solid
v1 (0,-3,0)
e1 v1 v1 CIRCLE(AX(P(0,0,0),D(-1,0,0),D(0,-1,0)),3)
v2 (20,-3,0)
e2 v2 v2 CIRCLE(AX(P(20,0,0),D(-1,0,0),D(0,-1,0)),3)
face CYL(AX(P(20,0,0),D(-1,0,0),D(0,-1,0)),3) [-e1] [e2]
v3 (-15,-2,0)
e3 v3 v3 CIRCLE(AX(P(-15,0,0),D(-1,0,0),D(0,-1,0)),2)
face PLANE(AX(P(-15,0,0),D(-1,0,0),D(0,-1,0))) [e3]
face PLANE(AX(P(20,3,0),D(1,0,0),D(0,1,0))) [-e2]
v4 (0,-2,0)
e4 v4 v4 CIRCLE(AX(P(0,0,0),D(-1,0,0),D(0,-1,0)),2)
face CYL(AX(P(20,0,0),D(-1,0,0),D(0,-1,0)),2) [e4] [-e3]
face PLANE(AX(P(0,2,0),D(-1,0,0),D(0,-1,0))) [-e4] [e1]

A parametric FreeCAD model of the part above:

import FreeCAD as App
import Part
import Sketcher


def add_polygon(sketch, points):
    """Adds a closed chain of lines whose ends are joined by coincident constraints."""
    first, n = sketch.GeometryCount, len(points)
    for a, b in zip(points, points[1:] + points[:1]):
        sketch.addGeometry(Part.LineSegment(App.Vector(*a, 0), App.Vector(*b, 0)), False)
    for i in range(n):
        sketch.addConstraint(Sketcher.Constraint("Coincident", first + i, 2, first + (i + 1) % n, 1))

doc = App.newDocument("Part")
body = doc.addObject("PartDesign::Body", "Body")

# Sketch on XY plane
sketch1 = body.newObject("Sketcher::SketchObject", "Sketch")
sketch1.AttachmentSupport = (doc.getObject("XY_Plane"), [""])
sketch1.MapMode = "FlatFace"
add_polygon(sketch1, [(20, 3), (20, 0), (-15, 0), (-15, 2), (0, 2), (0, 3)])  # lines 0-5
sketch1.addConstraint(Sketcher.Constraint("Vertical", 0))
sketch1.addConstraint(Sketcher.Constraint("Horizontal", 1))
sketch1.addConstraint(Sketcher.Constraint("Vertical", 2))
sketch1.addConstraint(Sketcher.Constraint("Horizontal", 3))
sketch1.addConstraint(Sketcher.Constraint("Vertical", 4))
sketch1.addConstraint(Sketcher.Constraint("Horizontal", 5))
sketch1.addConstraint(Sketcher.Constraint("PointOnObject", 0, 2, -1))
sketch1.addConstraint(Sketcher.Constraint("PointOnObject", 3, 2, -2))
sketch1.addConstraint(Sketcher.Constraint("DistanceX", 1, 2, 1, 1, 35.0))
sketch1.addConstraint(Sketcher.Constraint("DistanceX", 3, 1, 3, 2, 15.0))
sketch1.addConstraint(Sketcher.Constraint("DistanceY", 0, 2, 0, 1, 3.0))
sketch1.addConstraint(Sketcher.Constraint("DistanceY", 2, 1, 2, 2, 2.0))
revolution = body.newObject("PartDesign::Revolution", "Revolution")
revolution.Profile = sketch1
revolution.ReferenceAxis = (sketch1, ["H_Axis"])
revolution.Angle = 360

doc.recompute()
